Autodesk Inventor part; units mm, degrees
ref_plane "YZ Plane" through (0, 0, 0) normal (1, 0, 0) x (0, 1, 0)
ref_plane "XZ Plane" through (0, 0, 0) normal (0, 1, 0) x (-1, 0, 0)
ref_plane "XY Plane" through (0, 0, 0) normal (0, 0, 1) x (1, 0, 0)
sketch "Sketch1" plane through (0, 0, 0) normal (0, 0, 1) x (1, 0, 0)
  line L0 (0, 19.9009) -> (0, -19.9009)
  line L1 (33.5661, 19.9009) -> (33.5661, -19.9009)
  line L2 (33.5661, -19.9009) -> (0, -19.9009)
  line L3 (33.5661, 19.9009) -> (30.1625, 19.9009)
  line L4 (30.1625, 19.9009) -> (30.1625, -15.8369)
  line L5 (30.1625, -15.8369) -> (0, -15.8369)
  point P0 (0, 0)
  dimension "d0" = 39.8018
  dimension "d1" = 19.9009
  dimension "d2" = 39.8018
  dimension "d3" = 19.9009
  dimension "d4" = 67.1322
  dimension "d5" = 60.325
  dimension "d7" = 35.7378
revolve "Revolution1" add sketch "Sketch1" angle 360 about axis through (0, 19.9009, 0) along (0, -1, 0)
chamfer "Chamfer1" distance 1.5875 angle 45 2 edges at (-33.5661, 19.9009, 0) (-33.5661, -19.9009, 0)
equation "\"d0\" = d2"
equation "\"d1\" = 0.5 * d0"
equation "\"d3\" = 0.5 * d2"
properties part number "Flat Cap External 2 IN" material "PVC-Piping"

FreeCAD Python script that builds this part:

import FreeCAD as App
import Part
import Sketcher

V = App.Vector
Q = App.Units.Quantity


def edges_at(feature, points):
    """Names of the edges that pass closest to the given points."""
    edges = feature.Shape.Edges
    near = lambda p: min(range(len(edges)), key=lambda i: edges[i].distToShape(Part.Vertex(*p))[0])
    return sorted({f"Edge{near(p) + 1}" for p in points})

doc = App.newDocument("Part")
body = doc.addObject("PartDesign::Body", "Body")

sketch1 = body.newObject("Sketcher::SketchObject", "Sketch")
sketch1.AttachmentSupport = (doc.getObject("XY_Plane"), [""])
sketch1.MapMode = "FlatFace"
sketch1.addGeometry([
    Part.LineSegment(V(30.2, -15.8, 0), V(0, -15.8, 0)),
    Part.LineSegment(V(0, -15.8, 0), V(0, -19.9, 0)),
    Part.LineSegment(V(0, -19.9, 0), V(33.6, -19.9, 0)),
    Part.LineSegment(V(33.6, -19.9, 0), V(33.6, 19.9, 0)),
    Part.LineSegment(V(33.6, 19.9, 0), V(30.2, 19.9, 0)),
    Part.LineSegment(V(30.2, 19.9, 0), V(30.2, -15.8, 0)),
], False)
sketch1.addConstraint([
    Sketcher.Constraint("Coincident", 0, 2, 1, 1),
    Sketcher.Constraint("Coincident", 1, 2, 2, 1),
    Sketcher.Constraint("Coincident", 2, 2, 3, 1),
    Sketcher.Constraint("Coincident", 3, 2, 4, 1),
    Sketcher.Constraint("Coincident", 4, 2, 5, 1),
    Sketcher.Constraint("Coincident", 5, 2, 0, 1),
    Sketcher.Constraint("Horizontal", 0),
    Sketcher.Constraint("Vertical", 1),
    Sketcher.Constraint("Horizontal", 2),
    Sketcher.Constraint("Vertical", 3),
    Sketcher.Constraint("Horizontal", 4),
    Sketcher.Constraint("Vertical", 5),
    Sketcher.Constraint("PointOnObject", 0, 2, -2),
    Sketcher.Constraint("DistanceY", 3, 1, 3, 2, Q("1.567 in")),
    Sketcher.Constraint("DistanceY", 5, 2, 5, 1, Q("1.407 in")),
    Sketcher.Constraint("DistanceY", 1, 2, -1, 1, Q("0.7835 in")),
    Sketcher.Constraint("DistanceX", 0, 2, 0, 1, Q("1.1875 in")),
    Sketcher.Constraint("DistanceX", 4, 2, 4, 1, Q("0.134 in")),
])
revolution = body.newObject("PartDesign::Revolution", "Revolution")
revolution.Profile = sketch1
revolution.ReferenceAxis = (sketch1, ["V_Axis"])
revolution.Angle = 360
doc.recompute()

chamfer = body.newObject("PartDesign::Chamfer", "Chamfer")
chamfer.Base = (revolution, edges_at(revolution, [(-33.566, 19.901, 0), (-33.566, -19.901, 0)]))
chamfer.Size = Q("0.0625 in")

doc.recompute()
